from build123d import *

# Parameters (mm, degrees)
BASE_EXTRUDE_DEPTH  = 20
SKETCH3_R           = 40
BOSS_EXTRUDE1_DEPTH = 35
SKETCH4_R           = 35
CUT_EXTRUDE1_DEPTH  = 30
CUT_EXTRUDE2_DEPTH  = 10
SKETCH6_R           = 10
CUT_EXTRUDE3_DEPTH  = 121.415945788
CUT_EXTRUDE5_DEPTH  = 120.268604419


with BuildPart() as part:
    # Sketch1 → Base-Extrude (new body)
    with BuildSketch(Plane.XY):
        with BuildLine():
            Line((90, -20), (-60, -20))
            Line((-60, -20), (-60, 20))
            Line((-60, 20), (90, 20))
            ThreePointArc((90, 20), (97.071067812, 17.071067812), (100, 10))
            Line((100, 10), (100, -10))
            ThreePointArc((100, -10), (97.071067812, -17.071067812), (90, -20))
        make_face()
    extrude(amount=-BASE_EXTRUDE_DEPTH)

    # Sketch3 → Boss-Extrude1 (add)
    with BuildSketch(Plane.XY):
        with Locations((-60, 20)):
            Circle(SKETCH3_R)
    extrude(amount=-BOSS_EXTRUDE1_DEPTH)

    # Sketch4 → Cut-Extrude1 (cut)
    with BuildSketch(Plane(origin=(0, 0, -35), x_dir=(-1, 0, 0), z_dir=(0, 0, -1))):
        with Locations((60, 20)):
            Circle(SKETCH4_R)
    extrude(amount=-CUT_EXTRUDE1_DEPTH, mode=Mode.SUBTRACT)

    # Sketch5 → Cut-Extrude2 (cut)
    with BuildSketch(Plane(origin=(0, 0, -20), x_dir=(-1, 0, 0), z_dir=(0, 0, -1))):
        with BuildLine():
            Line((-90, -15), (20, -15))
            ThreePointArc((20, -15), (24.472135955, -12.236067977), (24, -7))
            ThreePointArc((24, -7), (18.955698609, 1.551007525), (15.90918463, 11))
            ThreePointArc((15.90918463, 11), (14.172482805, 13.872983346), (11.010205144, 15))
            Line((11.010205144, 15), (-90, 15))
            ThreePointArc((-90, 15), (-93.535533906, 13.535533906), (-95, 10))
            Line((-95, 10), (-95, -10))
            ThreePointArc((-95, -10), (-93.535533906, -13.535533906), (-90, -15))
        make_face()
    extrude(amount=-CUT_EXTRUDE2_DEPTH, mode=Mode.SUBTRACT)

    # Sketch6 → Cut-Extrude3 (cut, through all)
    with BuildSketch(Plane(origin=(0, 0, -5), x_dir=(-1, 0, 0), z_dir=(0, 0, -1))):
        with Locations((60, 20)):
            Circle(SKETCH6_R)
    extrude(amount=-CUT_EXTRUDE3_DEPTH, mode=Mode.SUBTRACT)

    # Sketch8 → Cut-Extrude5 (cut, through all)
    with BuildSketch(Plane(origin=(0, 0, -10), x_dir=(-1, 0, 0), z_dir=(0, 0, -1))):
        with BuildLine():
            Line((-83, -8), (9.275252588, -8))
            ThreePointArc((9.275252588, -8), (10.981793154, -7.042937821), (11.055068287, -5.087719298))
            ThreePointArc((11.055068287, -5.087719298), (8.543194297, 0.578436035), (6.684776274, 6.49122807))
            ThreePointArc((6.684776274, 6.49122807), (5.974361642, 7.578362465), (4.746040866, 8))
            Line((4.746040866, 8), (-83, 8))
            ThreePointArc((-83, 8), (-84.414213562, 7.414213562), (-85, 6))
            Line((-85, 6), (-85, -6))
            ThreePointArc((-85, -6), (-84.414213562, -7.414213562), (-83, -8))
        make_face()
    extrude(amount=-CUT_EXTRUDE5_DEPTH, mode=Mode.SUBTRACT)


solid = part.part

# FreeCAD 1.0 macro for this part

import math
import FreeCAD as App
import Part
import Sketcher

V = App.Vector

doc = App.newDocument("Part")
body = doc.addObject("PartDesign::Body", "Body")

# Sketch on XY plane
sketch1 = body.newObject("Sketcher::SketchObject", "Sketch")
sketch1.AttachmentSupport = (doc.getObject("XY_Plane"), [""])
sketch1.MapMode = "FlatFace"
sketch1.addGeometry(Part.LineSegment(V(-60, -20, 0), V(90, -20, 0)), False)
sketch1.addGeometry(Part.ArcOfCircle(Part.Circle(V(90, -10, 0), V(0, 0, 1), 10), math.radians(-90), math.radians(0)), False)
sketch1.addGeometry(Part.LineSegment(V(100, -10, 0), V(100, 10, 0)), False)
sketch1.addGeometry(Part.ArcOfCircle(Part.Circle(V(90, 10, 0), V(0, 0, 1), 10), math.radians(0), math.radians(90)), False)
sketch1.addGeometry(Part.LineSegment(V(90, 20, 0), V(-60, 20, 0)), False)
sketch1.addGeometry(Part.LineSegment(V(-60, 20, 0), V(-60, -20, 0)), False)
sketch1.addConstraint(Sketcher.Constraint("Tangent", 0, 2, 1, 1))
sketch1.addConstraint(Sketcher.Constraint("Tangent", 1, 2, 2, 1))
sketch1.addConstraint(Sketcher.Constraint("Tangent", 2, 2, 3, 1))
sketch1.addConstraint(Sketcher.Constraint("Tangent", 3, 2, 4, 1))
sketch1.addConstraint(Sketcher.Constraint("Coincident", 4, 2, 5, 1))
sketch1.addConstraint(Sketcher.Constraint("Coincident", 5, 2, 0, 1))
sketch1.addConstraint(Sketcher.Constraint("Horizontal", 0))
sketch1.addConstraint(Sketcher.Constraint("Vertical", 2))
sketch1.addConstraint(Sketcher.Constraint("Horizontal", 4))
sketch1.addConstraint(Sketcher.Constraint("Vertical", 5))
sketch1.addConstraint(Sketcher.Constraint("Equal", 1, 3))
sketch1.addConstraint(Sketcher.Constraint("Radius", 1, 10.0))
sketch1.addConstraint(Sketcher.Constraint("DistanceX", 0, 1, 0, 2, 150.0))
sketch1.addConstraint(Sketcher.Constraint("DistanceY", 2, 1, 2, 2, 20.0))
sketch1.addConstraint(Sketcher.Constraint("DistanceX", -1, 1, 1, 3, 90.0))
sketch1.addConstraint(Sketcher.Constraint("DistanceY", 1, 3, -1, 1, 10.0))
pad1 = body.newObject("PartDesign::Pad", "Pad")
pad1.Profile = sketch1
pad1.Length = 20
pad1.Reversed = True

# Sketch on XY plane
sketch2 = body.newObject("Sketcher::SketchObject", "Sketch001")
sketch2.AttachmentSupport = (doc.getObject("XY_Plane"), [""])
sketch2.MapMode = "FlatFace"
sketch2.addGeometry(Part.Circle(V(-60, 20, 0), V(0, 0, 1), 40), False)
sketch2.addConstraint(Sketcher.Constraint("Diameter", 0, 80.0))
sketch2.addConstraint(Sketcher.Constraint("DistanceX", 0, 3, -1, 1, 60.0))
sketch2.addConstraint(Sketcher.Constraint("DistanceY", -1, 1, 0, 3, 20.0))
pad2 = body.newObject("PartDesign::Pad", "Pad001")
pad2.Profile = sketch2
pad2.Length = 35
pad2.Reversed = True

# Sketch on XY plane
sketch3 = body.newObject("Sketcher::SketchObject", "Sketch002")
sketch3.AttachmentSupport = (doc.getObject("XY_Plane"), [""])
sketch3.MapMode = "FlatFace"
sketch3.AttachmentOffset = App.Placement(V(0, 0, -35), App.Rotation())
sketch3.addGeometry(Part.Circle(V(-60, 20, 0), V(0, 0, 1), 35), False)
sketch3.addConstraint(Sketcher.Constraint("Diameter", 0, 70.0))
sketch3.addConstraint(Sketcher.Constraint("DistanceX", 0, 3, -1, 1, 60.0))
sketch3.addConstraint(Sketcher.Constraint("DistanceY", -1, 1, 0, 3, 20.0))
pocket1 = body.newObject("PartDesign::Pocket", "Pocket")
pocket1.Profile = sketch3
pocket1.Length = 30
pocket1.Reversed = True

# Sketch on XY plane
sketch4 = body.newObject("Sketcher::SketchObject", "Sketch003")
sketch4.AttachmentSupport = (doc.getObject("XY_Plane"), [""])
sketch4.MapMode = "FlatFace"
sketch4.AttachmentOffset = App.Placement(V(0, 0, -20), App.Rotation())
sketch4.addGeometry(Part.LineSegment(V(90, -15, 0), V(-20, -15, 0)), False)
sketch4.addGeometry(Part.ArcOfCircle(Part.Circle(V(-20, -10, 0), V(0, 0, 1), 5), math.radians(143), math.radians(270)), False)
sketch4.addGeometry(Part.ArcOfCircle(Part.Circle(V(-60, 20, 0), V(0, 0, 1), 45), math.radians(-37), math.radians(-12)), False)
sketch4.addGeometry(Part.ArcOfCircle(Part.Circle(V(-11, 10, 0), V(0, 0, 1), 5), math.radians(90), math.radians(168)), False)
sketch4.addGeometry(Part.LineSegment(V(-11, 15, 0), V(90, 15, 0)), False)
sketch4.addGeometry(Part.ArcOfCircle(Part.Circle(V(90, 10, 0), V(0, 0, 1), 5), math.radians(0), math.radians(90)), False)
sketch4.addGeometry(Part.LineSegment(V(95, 10, 0), V(95, -10, 0)), False)
sketch4.addGeometry(Part.ArcOfCircle(Part.Circle(V(90, -10, 0), V(0, 0, 1), 5), math.radians(-90), math.radians(0)), False)
sketch4.addConstraint(Sketcher.Constraint("Tangent", 0, 2, 1, 2))
sketch4.addConstraint(Sketcher.Constraint("Tangent", 1, 1, 2, 1))
sketch4.addConstraint(Sketcher.Constraint("Tangent", 2, 2, 3, 2))
sketch4.addConstraint(Sketcher.Constraint("Tangent", 3, 1, 4, 1))
sketch4.addConstraint(Sketcher.Constraint("Tangent", 4, 2, 5, 2))
sketch4.addConstraint(Sketcher.Constraint("Tangent", 5, 1, 6, 1))
sketch4.addConstraint(Sketcher.Constraint("Tangent", 6, 2, 7, 2))
sketch4.addConstraint(Sketcher.Constraint("Tangent", 7, 1, 0, 1))
sketch4.addConstraint(Sketcher.Constraint("Horizontal", 0))
sketch4.addConstraint(Sketcher.Constraint("Horizontal", 4))
sketch4.addConstraint(Sketcher.Constraint("Vertical", 6))
sketch4.addConstraint(Sketcher.Constraint("Equal", 1, 3))
sketch4.addConstraint(Sketcher.Constraint("Equal", 3, 5))
sketch4.addConstraint(Sketcher.Constraint("Equal", 5, 7))
sketch4.addConstraint(Sketcher.Constraint("Radius", 1, 5.0))
sketch4.addConstraint(Sketcher.Constraint("Radius", 2, 45.0))
sketch4.addConstraint(Sketcher.Constraint("DistanceX", 0, 2, 0, 1, 110.0))
sketch4.addConstraint(Sketcher.Constraint("DistanceY", 6, 2, 6, 1, 20.0))
sketch4.addConstraint(Sketcher.Constraint("DistanceX", 1, 3, -1, 1, 20.0))
sketch4.addConstraint(Sketcher.Constraint("DistanceY", 1, 3, -1, 1, 10.0))
sketch4.addConstraint(Sketcher.Constraint("DistanceX", 2, 3, -1, 1, 60.0))
pocket2 = body.newObject("PartDesign::Pocket", "Pocket001")
pocket2.Profile = sketch4
pocket2.Length = 10
pocket2.Reversed = True

# Sketch on XY plane
sketch5 = body.newObject("Sketcher::SketchObject", "Sketch004")
sketch5.AttachmentSupport = (doc.getObject("XY_Plane"), [""])
sketch5.MapMode = "FlatFace"
sketch5.AttachmentOffset = App.Placement(V(0, 0, -5), App.Rotation())
sketch5.addGeometry(Part.Circle(V(-60, 20, 0), V(0, 0, 1), 10), False)
sketch5.addConstraint(Sketcher.Constraint("Diameter", 0, 20.0))
sketch5.addConstraint(Sketcher.Constraint("DistanceX", 0, 3, -1, 1, 60.0))
sketch5.addConstraint(Sketcher.Constraint("DistanceY", -1, 1, 0, 3, 20.0))
pocket3 = body.newObject("PartDesign::Pocket", "Pocket002")
pocket3.Profile = sketch5
pocket3.Type = "ThroughAll"
pocket3.Reversed = True

# Sketch on XY plane
sketch6 = body.newObject("Sketcher::SketchObject", "Sketch005")
sketch6.AttachmentSupport = (doc.getObject("XY_Plane"), [""])
sketch6.MapMode = "FlatFace"
sketch6.AttachmentOffset = App.Placement(V(0, 0, -10), App.Rotation())
sketch6.addGeometry(Part.LineSegment(V(83, -8, 0), V(-9.3, -8, 0)), False)
sketch6.addGeometry(Part.ArcOfCircle(Part.Circle(V(-9.3, -6, 0), V(0, 0, 1), 2), math.radians(153), math.radians(270)), False)
sketch6.addGeometry(Part.ArcOfCircle(Part.Circle(V(-60, 20, 0), V(0, 0, 1), 55), math.radians(-27.14), math.radians(-14.22)), False)
sketch6.addGeometry(Part.ArcOfCircle(Part.Circle(V(-4.7, 6, 0), V(0, 0, 1), 2), math.radians(90), math.radians(166)), False)
sketch6.addGeometry(Part.LineSegment(V(-4.7, 8, 0), V(83, 8, 0)), False)
sketch6.addGeometry(Part.ArcOfCircle(Part.Circle(V(83, 6, 0), V(0, 0, 1), 2), math.radians(0), math.radians(90)), False)
sketch6.addGeometry(Part.LineSegment(V(85, 6, 0), V(85, -6, 0)), False)
sketch6.addGeometry(Part.ArcOfCircle(Part.Circle(V(83, -6, 0), V(0, 0, 1), 2), math.radians(-90), math.radians(0)), False)
sketch6.addConstraint(Sketcher.Constraint("Tangent", 0, 2, 1, 2))
sketch6.addConstraint(Sketcher.Constraint("Tangent", 1, 1, 2, 1))
sketch6.addConstraint(Sketcher.Constraint("Tangent", 2, 2, 3, 2))
sketch6.addConstraint(Sketcher.Constraint("Tangent", 3, 1, 4, 1))
sketch6.addConstraint(Sketcher.Constraint("Tangent", 4, 2, 5, 2))
sketch6.addConstraint(Sketcher.Constraint("Tangent", 5, 1, 6, 1))
sketch6.addConstraint(Sketcher.Constraint("Tangent", 6, 2, 7, 2))
sketch6.addConstraint(Sketcher.Constraint("Tangent", 7, 1, 0, 1))
sketch6.addConstraint(Sketcher.Constraint("Horizontal", 0))
sketch6.addConstraint(Sketcher.Constraint("Horizontal", 4))
sketch6.addConstraint(Sketcher.Constraint("Vertical", 6))
sketch6.addConstraint(Sketcher.Constraint("Equal", 1, 3))
sketch6.addConstraint(Sketcher.Constraint("Equal", 3, 5))
sketch6.addConstraint(Sketcher.Constraint("Equal", 5, 7))
sketch6.addConstraint(Sketcher.Constraint("Radius", 1, 2.0))
sketch6.addConstraint(Sketcher.Constraint("Radius", 2, 55.0))
sketch6.addConstraint(Sketcher.Constraint("DistanceY", 6, 2, 6, 1, 12.0))
sketch6.addConstraint(Sketcher.Constraint("DistanceY", 1, 3, -1, 1, 6.0))
sketch6.addConstraint(Sketcher.Constraint("DistanceX", 2, 3, -1, 1, 60.0))
sketch6.addConstraint(Sketcher.Constraint("DistanceY", -1, 1, 2, 3, 20.0))
sketch6.addConstraint(Sketcher.Constraint("DistanceX", -1, 1, 5, 3, 83.0))
pocket4 = body.newObject("PartDesign::Pocket", "Pocket003")
pocket4.Profile = sketch6
pocket4.Type = "ThroughAll"
pocket4.Reversed = True

doc.recompute()
